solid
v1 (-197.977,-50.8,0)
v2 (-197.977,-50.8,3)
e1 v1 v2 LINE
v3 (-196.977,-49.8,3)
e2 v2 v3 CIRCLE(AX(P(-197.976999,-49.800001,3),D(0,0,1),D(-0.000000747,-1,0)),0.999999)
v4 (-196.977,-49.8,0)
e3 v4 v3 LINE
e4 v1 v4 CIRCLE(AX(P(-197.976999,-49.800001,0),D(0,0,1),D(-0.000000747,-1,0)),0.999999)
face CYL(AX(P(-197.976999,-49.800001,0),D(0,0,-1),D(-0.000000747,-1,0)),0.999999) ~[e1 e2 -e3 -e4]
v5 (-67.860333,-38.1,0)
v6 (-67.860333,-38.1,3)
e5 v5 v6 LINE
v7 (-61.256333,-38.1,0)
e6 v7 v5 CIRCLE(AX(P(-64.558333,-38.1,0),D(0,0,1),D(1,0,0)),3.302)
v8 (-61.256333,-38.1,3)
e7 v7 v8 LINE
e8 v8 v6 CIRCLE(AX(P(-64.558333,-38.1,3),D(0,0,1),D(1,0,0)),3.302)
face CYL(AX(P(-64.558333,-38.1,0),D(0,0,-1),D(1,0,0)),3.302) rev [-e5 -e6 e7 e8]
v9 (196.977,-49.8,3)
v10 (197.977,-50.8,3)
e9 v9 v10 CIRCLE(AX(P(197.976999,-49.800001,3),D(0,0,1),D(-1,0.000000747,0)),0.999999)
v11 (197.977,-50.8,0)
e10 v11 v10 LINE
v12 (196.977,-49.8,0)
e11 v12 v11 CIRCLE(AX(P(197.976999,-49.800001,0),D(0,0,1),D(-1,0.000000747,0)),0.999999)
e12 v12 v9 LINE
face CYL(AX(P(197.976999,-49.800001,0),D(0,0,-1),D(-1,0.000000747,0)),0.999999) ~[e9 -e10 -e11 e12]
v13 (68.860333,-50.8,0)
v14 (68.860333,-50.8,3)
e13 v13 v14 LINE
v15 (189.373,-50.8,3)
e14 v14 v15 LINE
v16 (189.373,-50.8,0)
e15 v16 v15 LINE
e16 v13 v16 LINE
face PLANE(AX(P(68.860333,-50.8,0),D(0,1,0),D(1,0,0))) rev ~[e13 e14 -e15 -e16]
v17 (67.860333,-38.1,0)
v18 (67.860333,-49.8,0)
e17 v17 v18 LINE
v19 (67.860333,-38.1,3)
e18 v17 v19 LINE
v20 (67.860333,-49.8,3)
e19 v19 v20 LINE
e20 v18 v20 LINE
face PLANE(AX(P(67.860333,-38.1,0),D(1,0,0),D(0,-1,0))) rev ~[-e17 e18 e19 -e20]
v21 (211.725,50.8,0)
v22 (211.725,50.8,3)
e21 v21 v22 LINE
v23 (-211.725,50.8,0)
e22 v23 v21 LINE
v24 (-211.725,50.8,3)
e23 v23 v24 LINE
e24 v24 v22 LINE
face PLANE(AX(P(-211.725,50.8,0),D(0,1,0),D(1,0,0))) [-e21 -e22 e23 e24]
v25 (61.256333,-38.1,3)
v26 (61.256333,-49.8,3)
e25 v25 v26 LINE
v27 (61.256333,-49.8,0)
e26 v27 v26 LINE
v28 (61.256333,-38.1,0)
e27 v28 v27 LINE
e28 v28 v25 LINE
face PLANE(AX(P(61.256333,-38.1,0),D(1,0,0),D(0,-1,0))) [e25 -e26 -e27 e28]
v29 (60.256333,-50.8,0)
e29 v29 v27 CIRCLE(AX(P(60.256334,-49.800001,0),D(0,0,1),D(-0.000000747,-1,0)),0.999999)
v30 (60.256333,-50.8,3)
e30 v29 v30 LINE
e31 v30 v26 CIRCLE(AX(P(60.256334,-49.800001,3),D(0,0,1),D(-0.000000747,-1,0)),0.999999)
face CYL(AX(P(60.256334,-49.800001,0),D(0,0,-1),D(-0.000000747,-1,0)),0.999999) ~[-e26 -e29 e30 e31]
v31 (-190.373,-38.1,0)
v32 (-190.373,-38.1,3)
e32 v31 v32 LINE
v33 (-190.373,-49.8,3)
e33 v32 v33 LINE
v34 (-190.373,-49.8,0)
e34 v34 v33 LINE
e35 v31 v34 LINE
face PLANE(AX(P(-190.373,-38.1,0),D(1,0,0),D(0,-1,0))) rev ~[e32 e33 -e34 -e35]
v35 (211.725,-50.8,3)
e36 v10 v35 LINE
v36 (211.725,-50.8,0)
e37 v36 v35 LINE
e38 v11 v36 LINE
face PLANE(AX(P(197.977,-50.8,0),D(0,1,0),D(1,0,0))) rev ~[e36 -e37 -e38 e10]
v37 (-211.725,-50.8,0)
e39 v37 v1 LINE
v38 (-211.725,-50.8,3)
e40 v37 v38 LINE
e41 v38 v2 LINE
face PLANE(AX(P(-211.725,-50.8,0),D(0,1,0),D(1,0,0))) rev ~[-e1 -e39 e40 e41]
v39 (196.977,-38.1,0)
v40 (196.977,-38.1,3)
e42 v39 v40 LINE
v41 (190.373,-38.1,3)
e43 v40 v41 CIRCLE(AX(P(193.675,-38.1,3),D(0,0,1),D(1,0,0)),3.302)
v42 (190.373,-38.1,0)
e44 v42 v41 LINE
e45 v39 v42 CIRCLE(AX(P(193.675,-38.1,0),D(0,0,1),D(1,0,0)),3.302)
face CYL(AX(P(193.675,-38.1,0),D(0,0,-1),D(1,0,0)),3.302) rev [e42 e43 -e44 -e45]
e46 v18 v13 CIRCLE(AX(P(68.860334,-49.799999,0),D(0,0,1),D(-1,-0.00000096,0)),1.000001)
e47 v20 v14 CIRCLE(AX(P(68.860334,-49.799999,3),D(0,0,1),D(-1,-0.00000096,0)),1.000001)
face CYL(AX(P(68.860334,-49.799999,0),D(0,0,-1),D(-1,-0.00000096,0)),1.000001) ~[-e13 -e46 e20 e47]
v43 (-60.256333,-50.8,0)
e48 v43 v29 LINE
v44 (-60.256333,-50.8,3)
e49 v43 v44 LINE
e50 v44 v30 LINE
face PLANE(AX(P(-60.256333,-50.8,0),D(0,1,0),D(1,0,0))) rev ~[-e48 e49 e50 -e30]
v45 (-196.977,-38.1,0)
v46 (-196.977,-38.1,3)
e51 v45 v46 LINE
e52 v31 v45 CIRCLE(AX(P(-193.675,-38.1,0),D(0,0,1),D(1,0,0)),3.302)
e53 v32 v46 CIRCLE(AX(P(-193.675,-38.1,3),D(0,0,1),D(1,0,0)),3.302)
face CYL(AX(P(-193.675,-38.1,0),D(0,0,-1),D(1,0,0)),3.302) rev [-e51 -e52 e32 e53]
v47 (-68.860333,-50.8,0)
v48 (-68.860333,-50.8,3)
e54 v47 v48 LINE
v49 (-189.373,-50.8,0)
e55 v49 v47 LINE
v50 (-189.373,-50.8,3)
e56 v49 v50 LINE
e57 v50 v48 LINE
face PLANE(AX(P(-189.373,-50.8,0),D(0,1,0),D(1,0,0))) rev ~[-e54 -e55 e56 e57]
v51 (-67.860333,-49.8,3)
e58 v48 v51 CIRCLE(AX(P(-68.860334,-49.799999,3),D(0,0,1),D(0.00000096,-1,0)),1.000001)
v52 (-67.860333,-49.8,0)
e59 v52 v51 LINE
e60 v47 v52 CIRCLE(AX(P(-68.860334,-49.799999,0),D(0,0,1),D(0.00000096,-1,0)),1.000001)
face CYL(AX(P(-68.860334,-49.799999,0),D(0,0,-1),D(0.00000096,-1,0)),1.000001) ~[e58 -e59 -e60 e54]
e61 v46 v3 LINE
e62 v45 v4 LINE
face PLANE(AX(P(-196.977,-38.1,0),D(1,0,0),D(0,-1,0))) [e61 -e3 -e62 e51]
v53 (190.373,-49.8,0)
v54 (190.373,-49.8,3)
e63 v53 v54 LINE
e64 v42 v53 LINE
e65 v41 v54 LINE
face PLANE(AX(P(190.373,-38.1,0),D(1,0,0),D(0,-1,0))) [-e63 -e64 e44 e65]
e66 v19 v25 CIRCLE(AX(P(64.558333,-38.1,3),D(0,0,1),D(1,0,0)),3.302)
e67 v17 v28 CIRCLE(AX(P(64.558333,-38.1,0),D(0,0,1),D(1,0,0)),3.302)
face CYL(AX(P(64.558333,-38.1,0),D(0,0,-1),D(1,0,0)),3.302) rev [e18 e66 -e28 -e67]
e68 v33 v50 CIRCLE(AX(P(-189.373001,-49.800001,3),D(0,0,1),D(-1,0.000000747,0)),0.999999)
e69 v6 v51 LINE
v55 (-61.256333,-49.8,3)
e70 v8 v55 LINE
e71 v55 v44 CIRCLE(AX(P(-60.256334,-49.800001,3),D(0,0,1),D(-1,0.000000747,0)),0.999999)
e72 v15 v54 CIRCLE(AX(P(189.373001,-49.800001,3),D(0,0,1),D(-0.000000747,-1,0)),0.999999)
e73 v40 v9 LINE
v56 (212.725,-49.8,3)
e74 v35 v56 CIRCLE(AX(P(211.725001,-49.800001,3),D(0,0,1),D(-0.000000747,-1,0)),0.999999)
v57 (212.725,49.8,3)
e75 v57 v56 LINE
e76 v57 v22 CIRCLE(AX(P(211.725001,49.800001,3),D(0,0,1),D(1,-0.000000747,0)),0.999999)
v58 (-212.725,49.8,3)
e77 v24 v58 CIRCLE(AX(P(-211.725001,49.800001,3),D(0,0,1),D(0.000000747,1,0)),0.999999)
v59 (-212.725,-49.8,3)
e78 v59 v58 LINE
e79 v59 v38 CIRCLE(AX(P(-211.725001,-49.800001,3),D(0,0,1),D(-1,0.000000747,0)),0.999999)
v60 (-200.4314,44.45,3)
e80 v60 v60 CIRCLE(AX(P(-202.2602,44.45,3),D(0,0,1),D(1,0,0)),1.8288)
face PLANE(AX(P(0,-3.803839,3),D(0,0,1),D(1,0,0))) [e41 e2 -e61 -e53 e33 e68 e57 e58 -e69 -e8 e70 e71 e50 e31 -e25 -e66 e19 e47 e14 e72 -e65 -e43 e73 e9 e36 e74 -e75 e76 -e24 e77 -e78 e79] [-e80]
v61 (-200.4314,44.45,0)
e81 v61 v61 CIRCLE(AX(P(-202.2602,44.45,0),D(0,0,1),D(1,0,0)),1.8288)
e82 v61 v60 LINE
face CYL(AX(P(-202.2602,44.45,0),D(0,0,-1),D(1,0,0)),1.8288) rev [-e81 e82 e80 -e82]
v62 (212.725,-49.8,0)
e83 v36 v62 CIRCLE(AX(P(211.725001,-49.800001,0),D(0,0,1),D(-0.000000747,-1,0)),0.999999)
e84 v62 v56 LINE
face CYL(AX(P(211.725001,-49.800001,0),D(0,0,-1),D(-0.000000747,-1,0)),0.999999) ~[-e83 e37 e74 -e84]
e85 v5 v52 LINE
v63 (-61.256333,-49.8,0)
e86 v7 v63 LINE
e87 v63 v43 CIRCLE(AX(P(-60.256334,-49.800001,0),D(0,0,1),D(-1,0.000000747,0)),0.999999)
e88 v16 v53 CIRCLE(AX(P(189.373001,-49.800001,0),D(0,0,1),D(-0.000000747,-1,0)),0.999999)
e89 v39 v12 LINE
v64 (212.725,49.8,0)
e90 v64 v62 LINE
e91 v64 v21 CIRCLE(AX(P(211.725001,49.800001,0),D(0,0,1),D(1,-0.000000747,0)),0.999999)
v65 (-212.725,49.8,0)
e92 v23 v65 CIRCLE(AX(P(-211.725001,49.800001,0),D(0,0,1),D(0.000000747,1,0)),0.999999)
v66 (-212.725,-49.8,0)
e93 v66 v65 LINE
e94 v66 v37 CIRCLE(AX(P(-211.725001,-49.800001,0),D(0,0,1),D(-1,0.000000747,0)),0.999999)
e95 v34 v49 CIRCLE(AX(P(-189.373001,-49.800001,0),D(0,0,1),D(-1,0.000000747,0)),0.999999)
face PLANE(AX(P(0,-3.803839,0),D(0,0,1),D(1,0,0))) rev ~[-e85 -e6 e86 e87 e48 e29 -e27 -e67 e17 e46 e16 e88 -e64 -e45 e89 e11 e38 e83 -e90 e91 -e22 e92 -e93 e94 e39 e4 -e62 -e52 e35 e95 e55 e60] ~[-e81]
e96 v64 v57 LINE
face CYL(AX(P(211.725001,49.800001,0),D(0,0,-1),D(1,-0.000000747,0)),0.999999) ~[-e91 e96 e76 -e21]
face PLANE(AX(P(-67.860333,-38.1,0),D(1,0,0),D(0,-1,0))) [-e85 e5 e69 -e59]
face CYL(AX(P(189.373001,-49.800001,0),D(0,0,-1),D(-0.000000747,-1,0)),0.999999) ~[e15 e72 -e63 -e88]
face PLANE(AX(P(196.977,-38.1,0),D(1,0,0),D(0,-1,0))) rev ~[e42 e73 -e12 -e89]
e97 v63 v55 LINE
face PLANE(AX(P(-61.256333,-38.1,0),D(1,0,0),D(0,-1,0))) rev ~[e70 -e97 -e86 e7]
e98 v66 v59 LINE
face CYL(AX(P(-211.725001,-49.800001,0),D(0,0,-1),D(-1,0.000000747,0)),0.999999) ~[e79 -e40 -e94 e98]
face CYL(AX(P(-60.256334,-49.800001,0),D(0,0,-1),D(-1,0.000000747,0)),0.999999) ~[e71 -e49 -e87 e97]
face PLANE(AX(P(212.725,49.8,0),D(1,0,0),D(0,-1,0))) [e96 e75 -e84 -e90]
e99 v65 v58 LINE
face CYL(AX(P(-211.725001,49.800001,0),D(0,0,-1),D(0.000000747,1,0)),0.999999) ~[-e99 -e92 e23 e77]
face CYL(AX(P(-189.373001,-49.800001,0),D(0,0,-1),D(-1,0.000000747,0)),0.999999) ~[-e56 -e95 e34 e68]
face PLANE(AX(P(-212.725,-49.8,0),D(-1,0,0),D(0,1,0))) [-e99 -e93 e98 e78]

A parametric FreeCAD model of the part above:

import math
import FreeCAD as App
import Part
import Sketcher

V = App.Vector
Q = App.Units.Quantity

doc = App.newDocument("Part")
body = doc.addObject("PartDesign::Body", "Body")

sketch1 = doc.addObject("Sketcher::SketchObject", "Sketch")
body.addObject(sketch1)
sketch1.AttachmentSupport = (doc.XY_Plane, [""])
sketch1.MapMode = "FlatFace"
sketch1.addGeometry(Part.ArcOfCircle(Part.Circle(V(-211.725001, 49.800001, 0), V(0, 0, 1), 0.999999), math.radians(89.999957), math.radians(180.000043)), False)
sketch1.addGeometry(Part.LineSegment(V(-212.725, 49.8, 0), V(-212.725, -49.8, 0)), False)
sketch1.addGeometry(Part.ArcOfCircle(Part.Circle(V(-211.725001, -49.800001, 0), V(0, 0, 1), 0.999999), math.radians(179.999957), math.radians(270.000043)), False)
sketch1.addGeometry(Part.LineSegment(V(-211.725, -50.8, 0), V(-197.977, -50.8, 0)), False)
sketch1.addGeometry(Part.ArcOfCircle(Part.Circle(V(-197.976999, -49.800001, 0), V(0, 0, 1), 0.999999), math.radians(-90.000043), math.radians(0.000043)), False)
sketch1.addGeometry(Part.LineSegment(V(-196.977, -49.8, 0), V(-196.977, -38.1, 0)), False)
sketch1.addGeometry(Part.ArcOfCircle(Part.Circle(V(-193.675, -38.1, 0), V(0, 0, 1), 3.302), math.radians(0), math.radians(180)), False)
sketch1.addGeometry(Part.LineSegment(V(-190.373, -38.1, 0), V(-190.373, -49.8, 0)), False)
sketch1.addGeometry(Part.ArcOfCircle(Part.Circle(V(-189.373001, -49.800001, 0), V(0, 0, 1), 0.999999), math.radians(179.999957), math.radians(270.000043)), False)
sketch1.addGeometry(Part.LineSegment(V(-189.373, -50.8, 0), V(-68.860333, -50.8, 0)), False)
sketch1.addGeometry(Part.ArcOfCircle(Part.Circle(V(-68.860334, -49.799999, 0), V(0, 0, 1), 1.000001), math.radians(-89.999945), math.radians(-0.000055)), False)
sketch1.addGeometry(Part.LineSegment(V(-67.860333, -49.8, 0), V(-67.860333, -38.1, 0)), False)
sketch1.addGeometry(Part.ArcOfCircle(Part.Circle(V(-64.558333, -38.1, 0), V(0, 0, 1), 3.302), math.radians(0), math.radians(180)), False)
sketch1.addGeometry(Part.LineSegment(V(-61.256333, -38.1, 0), V(-61.256333, -49.8, 0)), False)
sketch1.addGeometry(Part.ArcOfCircle(Part.Circle(V(-60.256334, -49.800001, 0), V(0, 0, 1), 0.999999), math.radians(179.999957), math.radians(270.000043)), False)
sketch1.addGeometry(Part.LineSegment(V(-60.256333, -50.8, 0), V(60.256333, -50.8, 0)), False)
sketch1.addGeometry(Part.ArcOfCircle(Part.Circle(V(60.256334, -49.800001, 0), V(0, 0, 1), 0.999999), math.radians(-90.000043), math.radians(0.000043)), False)
sketch1.addGeometry(Part.LineSegment(V(61.256333, -49.8, 0), V(61.256333, -38.1, 0)), False)
sketch1.addGeometry(Part.ArcOfCircle(Part.Circle(V(64.558333, -38.1, 0), V(0, 0, 1), 3.302), math.radians(0), math.radians(180)), False)
sketch1.addGeometry(Part.LineSegment(V(67.860333, -38.1, 0), V(67.860333, -49.8, 0)), False)
sketch1.addGeometry(Part.ArcOfCircle(Part.Circle(V(68.860334, -49.799999, 0), V(0, 0, 1), 1.000001), math.radians(-179.999945), math.radians(-90.000055)), False)
sketch1.addGeometry(Part.LineSegment(V(68.860333, -50.8, 0), V(189.373, -50.8, 0)), False)
sketch1.addGeometry(Part.ArcOfCircle(Part.Circle(V(189.373001, -49.800001, 0), V(0, 0, 1), 0.999999), math.radians(-90.000043), math.radians(0.000043)), False)
sketch1.addGeometry(Part.LineSegment(V(190.373, -49.8, 0), V(190.373, -38.1, 0)), False)
sketch1.addGeometry(Part.ArcOfCircle(Part.Circle(V(193.675, -38.1, 0), V(0, 0, 1), 3.302), math.radians(0), math.radians(180)), False)
sketch1.addGeometry(Part.LineSegment(V(196.977, -38.1, 0), V(196.977, -49.8, 0)), False)
sketch1.addGeometry(Part.ArcOfCircle(Part.Circle(V(197.976999, -49.800001, 0), V(0, 0, 1), 0.999999), math.radians(179.999957), math.radians(270.000043)), False)
sketch1.addGeometry(Part.LineSegment(V(197.977, -50.8, 0), V(211.725, -50.8, 0)), False)
sketch1.addGeometry(Part.ArcOfCircle(Part.Circle(V(211.725001, -49.800001, 0), V(0, 0, 1), 0.999999), math.radians(-90.000043), math.radians(0.000043)), False)
sketch1.addGeometry(Part.LineSegment(V(212.725, -49.8, 0), V(212.725, 49.8, 0)), False)
sketch1.addGeometry(Part.ArcOfCircle(Part.Circle(V(211.725001, 49.800001, 0), V(0, 0, 1), 0.999999), math.radians(-0.000043), math.radians(90.000043)), False)
sketch1.addGeometry(Part.LineSegment(V(211.725, 50.8, 0), V(-211.725, 50.8, 0)), False)
sketch1.addGeometry(Part.Circle(V(-202.2602, 44.45, 0), V(0, 0, 1), 1.8288), False)
sketch1.addConstraint(Sketcher.Constraint("Tangent", 0, 2, 1, 1))
sketch1.addConstraint(Sketcher.Constraint("Tangent", 1, 2, 2, 1))
sketch1.addConstraint(Sketcher.Constraint("Tangent", 2, 2, 3, 1))
sketch1.addConstraint(Sketcher.Constraint("Tangent", 3, 2, 4, 1))
sketch1.addConstraint(Sketcher.Constraint("Tangent", 4, 2, 5, 1))
sketch1.addConstraint(Sketcher.Constraint("Tangent", 5, 2, 6, 2))
sketch1.addConstraint(Sketcher.Constraint("Tangent", 6, 1, 7, 1))
sketch1.addConstraint(Sketcher.Constraint("Tangent", 7, 2, 8, 1))
sketch1.addConstraint(Sketcher.Constraint("Tangent", 8, 2, 9, 1))
sketch1.addConstraint(Sketcher.Constraint("Tangent", 9, 2, 10, 1))
sketch1.addConstraint(Sketcher.Constraint("Tangent", 10, 2, 11, 1))
sketch1.addConstraint(Sketcher.Constraint("Tangent", 11, 2, 12, 2))
sketch1.addConstraint(Sketcher.Constraint("Tangent", 12, 1, 13, 1))
sketch1.addConstraint(Sketcher.Constraint("Tangent", 13, 2, 14, 1))
sketch1.addConstraint(Sketcher.Constraint("Tangent", 14, 2, 15, 1))
sketch1.addConstraint(Sketcher.Constraint("Tangent", 15, 2, 16, 1))
sketch1.addConstraint(Sketcher.Constraint("Tangent", 16, 2, 17, 1))
sketch1.addConstraint(Sketcher.Constraint("Tangent", 17, 2, 18, 2))
sketch1.addConstraint(Sketcher.Constraint("Tangent", 18, 1, 19, 1))
sketch1.addConstraint(Sketcher.Constraint("Tangent", 19, 2, 20, 1))
sketch1.addConstraint(Sketcher.Constraint("Tangent", 20, 2, 21, 1))
sketch1.addConstraint(Sketcher.Constraint("Tangent", 21, 2, 22, 1))
sketch1.addConstraint(Sketcher.Constraint("Tangent", 22, 2, 23, 1))
sketch1.addConstraint(Sketcher.Constraint("Tangent", 23, 2, 24, 2))
sketch1.addConstraint(Sketcher.Constraint("Tangent", 24, 1, 25, 1))
sketch1.addConstraint(Sketcher.Constraint("Tangent", 25, 2, 26, 1))
sketch1.addConstraint(Sketcher.Constraint("Tangent", 26, 2, 27, 1))
sketch1.addConstraint(Sketcher.Constraint("Tangent", 27, 2, 28, 1))
sketch1.addConstraint(Sketcher.Constraint("Tangent", 28, 2, 29, 1))
sketch1.addConstraint(Sketcher.Constraint("Tangent", 29, 2, 30, 1))
sketch1.addConstraint(Sketcher.Constraint("Tangent", 30, 2, 31, 1))
sketch1.addConstraint(Sketcher.Constraint("Tangent", 31, 2, 0, 1))
sketch1.addConstraint(Sketcher.Constraint("Vertical", 1))
sketch1.addConstraint(Sketcher.Constraint("Horizontal", 3))
sketch1.addConstraint(Sketcher.Constraint("Vertical", 5))
sketch1.addConstraint(Sketcher.Constraint("Vertical", 7))
sketch1.addConstraint(Sketcher.Constraint("Horizontal", 9))
sketch1.addConstraint(Sketcher.Constraint("Vertical", 11))
sketch1.addConstraint(Sketcher.Constraint("Vertical", 13))
sketch1.addConstraint(Sketcher.Constraint("Horizontal", 15))
sketch1.addConstraint(Sketcher.Constraint("Vertical", 17))
sketch1.addConstraint(Sketcher.Constraint("Vertical", 19))
sketch1.addConstraint(Sketcher.Constraint("Horizontal", 21))
sketch1.addConstraint(Sketcher.Constraint("Vertical", 23))
sketch1.addConstraint(Sketcher.Constraint("Vertical", 25))
sketch1.addConstraint(Sketcher.Constraint("Horizontal", 27))
sketch1.addConstraint(Sketcher.Constraint("Vertical", 29))
sketch1.addConstraint(Sketcher.Constraint("Horizontal", 31))
sketch1.addConstraint(Sketcher.Constraint("Equal", 0, 2))
sketch1.addConstraint(Sketcher.Constraint("Equal", 2, 4))
sketch1.addConstraint(Sketcher.Constraint("Equal", 4, 8))
sketch1.addConstraint(Sketcher.Constraint("Equal", 8, 10))
sketch1.addConstraint(Sketcher.Constraint("Equal", 6, 12))
sketch1.addConstraint(Sketcher.Constraint("Equal", 10, 14))
sketch1.addConstraint(Sketcher.Constraint("Equal", 14, 16))
sketch1.addConstraint(Sketcher.Constraint("Equal", 12, 18))
sketch1.addConstraint(Sketcher.Constraint("Equal", 16, 20))
sketch1.addConstraint(Sketcher.Constraint("Equal", 20, 22))
sketch1.addConstraint(Sketcher.Constraint("Equal", 18, 24))
sketch1.addConstraint(Sketcher.Constraint("Equal", 22, 26))
sketch1.addConstraint(Sketcher.Constraint("Equal", 26, 28))
sketch1.addConstraint(Sketcher.Constraint("Equal", 28, 30))
sketch1.addConstraint(Sketcher.Constraint("Symmetric", 0, 3, 28, 3, -1, 1))
sketch1.addConstraint(Sketcher.Constraint("Symmetric", 12, 3, 18, 3, -2))
sketch1.addConstraint(Sketcher.Constraint("Symmetric", 8, 3, 22, 3, -2))
sketch1.addConstraint(Sketcher.Constraint("Horizontal", 4, 3, 8, 3))
sketch1.addConstraint(Sketcher.Constraint("Horizontal", 6, 3, 12, 3))
sketch1.addConstraint(Sketcher.Constraint("Horizontal", 10, 3, 14, 3))
sketch1.addConstraint(Sketcher.Constraint("Horizontal", 18, 3, 24, 3))
sketch1.addConstraint(Sketcher.Constraint("Horizontal", 22, 3, 26, 3))
sketch1.addConstraint(Sketcher.Constraint("Equal", 9, 15))
sketch1.addConstraint(Sketcher.Constraint("Radius", 0, Q("0.999999 mm")))
sketch1.addConstraint(Sketcher.Constraint("DistanceY", 1, 2, 1, 1, Q("99.6 mm")))
sketch1.addConstraint(Sketcher.Constraint("DistanceY", 5, 1, 5, 2, Q("11.7 mm")))
sketch1.addConstraint(Sketcher.Constraint("Radius", 6, Q("3.302 mm")))
sketch1.addConstraint(Sketcher.Constraint("Diameter", 32, Q("3.6576 mm")))
sketch1.addConstraint(Sketcher.Constraint("DistanceX", 31, 2, 31, 1, Q("423.45 mm")))
sketch1.addConstraint(Sketcher.Constraint("DistanceX", 3, 1, 3, 2, Q("13.748 mm")))
sketch1.addConstraint(Sketcher.Constraint("DistanceY", -1, 1, 32, 3, Q("44.45 mm")))
sketch1.addConstraint(Sketcher.Constraint("DistanceX", 32, 3, -1, 1, Q("202.2602 mm")))
pad1 = doc.addObject("PartDesign::Pad", "Pad")
body.addObject(pad1)
pad1.Profile = sketch1
pad1.Length = 3

doc.recompute()
